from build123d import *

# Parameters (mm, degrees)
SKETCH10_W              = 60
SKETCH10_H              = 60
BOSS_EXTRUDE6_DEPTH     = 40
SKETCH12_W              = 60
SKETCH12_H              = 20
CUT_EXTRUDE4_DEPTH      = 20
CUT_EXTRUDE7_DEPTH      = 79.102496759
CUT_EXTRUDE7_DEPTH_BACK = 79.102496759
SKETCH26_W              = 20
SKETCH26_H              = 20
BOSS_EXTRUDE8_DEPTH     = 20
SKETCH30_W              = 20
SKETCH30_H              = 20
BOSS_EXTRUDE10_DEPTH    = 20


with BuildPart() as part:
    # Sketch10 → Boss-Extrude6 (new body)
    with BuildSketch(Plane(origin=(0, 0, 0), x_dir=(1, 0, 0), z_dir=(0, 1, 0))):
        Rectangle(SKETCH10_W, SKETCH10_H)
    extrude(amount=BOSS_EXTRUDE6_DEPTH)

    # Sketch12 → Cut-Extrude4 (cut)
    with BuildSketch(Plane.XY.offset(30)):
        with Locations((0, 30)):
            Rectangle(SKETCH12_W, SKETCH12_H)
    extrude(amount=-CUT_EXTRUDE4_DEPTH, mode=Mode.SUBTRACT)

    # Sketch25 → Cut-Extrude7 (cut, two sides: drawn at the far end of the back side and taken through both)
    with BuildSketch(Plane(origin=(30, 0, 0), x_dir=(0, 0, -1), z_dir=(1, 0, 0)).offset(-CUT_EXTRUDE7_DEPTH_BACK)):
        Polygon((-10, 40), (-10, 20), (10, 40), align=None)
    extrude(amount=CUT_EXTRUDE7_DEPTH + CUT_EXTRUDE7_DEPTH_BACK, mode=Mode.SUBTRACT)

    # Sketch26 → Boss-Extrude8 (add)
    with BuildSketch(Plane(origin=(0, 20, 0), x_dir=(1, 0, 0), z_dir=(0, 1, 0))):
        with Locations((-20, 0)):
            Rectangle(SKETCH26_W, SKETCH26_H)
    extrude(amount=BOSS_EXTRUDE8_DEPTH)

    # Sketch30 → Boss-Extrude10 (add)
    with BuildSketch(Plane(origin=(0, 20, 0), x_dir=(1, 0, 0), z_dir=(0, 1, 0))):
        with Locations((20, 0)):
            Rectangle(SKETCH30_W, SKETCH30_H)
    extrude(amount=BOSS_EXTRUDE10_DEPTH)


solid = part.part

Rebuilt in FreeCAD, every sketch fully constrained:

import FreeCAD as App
import Part
import Sketcher


def add_polygon(sketch, points):
    """Adds a closed chain of lines whose ends are joined by coincident constraints."""
    first, n = sketch.GeometryCount, len(points)
    for a, b in zip(points, points[1:] + points[:1]):
        sketch.addGeometry(Part.LineSegment(App.Vector(*a, 0), App.Vector(*b, 0)), False)
    for i in range(n):
        sketch.addConstraint(Sketcher.Constraint("Coincident", first + i, 2, first + (i + 1) % n, 1))

doc = App.newDocument("Part")
body = doc.addObject("PartDesign::Body", "Body")

# Sketch on XZ plane
sketch1 = body.newObject("Sketcher::SketchObject", "Sketch")
sketch1.AttachmentSupport = (doc.getObject("XZ_Plane"), [""])
sketch1.MapMode = "FlatFace"
add_polygon(sketch1, [(-30, -30), (-30, 30), (30, 30), (30, -30)])  # lines 0-3
sketch1.addConstraint([
    Sketcher.Constraint("Vertical", 0),
    Sketcher.Constraint("Horizontal", 1),
    Sketcher.Constraint("Vertical", 2),
    Sketcher.Constraint("Horizontal", 3),
    Sketcher.Constraint("Symmetric", 0, 2, 2, 2, -1, 1),
    Sketcher.Constraint("Equal", 3, 0),
    Sketcher.Constraint("DistanceX", 1, 1, 1, 2, 60.0),
])
pad1 = body.newObject("PartDesign::Pad", "Pad")
pad1.Profile = sketch1
pad1.Length = 40
pad1.Reversed = True

# Sketch on XY plane
sketch2 = body.newObject("Sketcher::SketchObject", "Sketch001")
sketch2.AttachmentSupport = (doc.getObject("XY_Plane"), [""])
sketch2.MapMode = "FlatFace"
sketch2.AttachmentOffset = App.Placement(App.Vector(0, 0, 30), App.Rotation())
add_polygon(sketch2, [(-30, 40), (-30, 20), (30, 20), (30, 40)])  # lines 0-3
sketch2.addConstraint([
    Sketcher.Constraint("Vertical", 0),
    Sketcher.Constraint("Horizontal", 1),
    Sketcher.Constraint("Vertical", 2),
    Sketcher.Constraint("Horizontal", 3),
    Sketcher.Constraint("DistanceX", 1, 1, 1, 2, 60.0),
    Sketcher.Constraint("DistanceY", 0, 2, 0, 1, 20.0),
    Sketcher.Constraint("DistanceX", 0, 2, -1, 1, 30.0),
    Sketcher.Constraint("DistanceY", -1, 1, 0, 2, 20.0),
])
pocket1 = body.newObject("PartDesign::Pocket", "Pocket")
pocket1.Profile = sketch2
pocket1.Length = 20

# Sketch on YZ plane
sketch3 = body.newObject("Sketcher::SketchObject", "Sketch002")
sketch3.AttachmentSupport = (doc.getObject("YZ_Plane"), [""])
sketch3.MapMode = "FlatFace"
sketch3.AttachmentOffset = App.Placement(App.Vector(0, 0, 30), App.Rotation())
add_polygon(sketch3, [(40, 10), (20, 10), (40, -10)])  # lines 0-2
sketch3.addConstraint([
    Sketcher.Constraint("Horizontal", 0),
    Sketcher.Constraint("Vertical", 2),
    Sketcher.Constraint("Equal", 0, 2),
    Sketcher.Constraint("DistanceX", 0, 2, 0, 1, 20.0),
    Sketcher.Constraint("DistanceX", -1, 1, 0, 2, 20.0),
    Sketcher.Constraint("DistanceY", -1, 1, 0, 2, 10.0),
])
pocket2 = body.newObject("PartDesign::Pocket", "Pocket001")
pocket2.Profile = sketch3
pocket2.Type = "ThroughAll"
pocket2.Midplane = True

# Sketch on XZ plane
sketch4 = body.newObject("Sketcher::SketchObject", "Sketch003")
sketch4.AttachmentSupport = (doc.getObject("XZ_Plane"), [""])
sketch4.MapMode = "FlatFace"
sketch4.AttachmentOffset = App.Placement(App.Vector(0, 0, -20), App.Rotation())
add_polygon(sketch4, [(-30, -10), (-30, 10), (-10, 10), (-10, -10)])  # lines 0-3
sketch4.addConstraint([
    Sketcher.Constraint("Vertical", 0),
    Sketcher.Constraint("Horizontal", 1),
    Sketcher.Constraint("Vertical", 2),
    Sketcher.Constraint("Horizontal", 3),
    Sketcher.Constraint("Equal", 3, 0),
    Sketcher.Constraint("DistanceX", 1, 1, 1, 2, 20.0),
    Sketcher.Constraint("DistanceX", 0, 2, -1, 1, 30.0),
    Sketcher.Constraint("DistanceY", -1, 1, 0, 2, 10.0),
])
pad2 = body.newObject("PartDesign::Pad", "Pad001")
pad2.Profile = sketch4
pad2.Length = 20
pad2.Reversed = True

# Sketch on XZ plane
sketch5 = body.newObject("Sketcher::SketchObject", "Sketch004")
sketch5.AttachmentSupport = (doc.getObject("XZ_Plane"), [""])
sketch5.MapMode = "FlatFace"
sketch5.AttachmentOffset = App.Placement(App.Vector(0, 0, -20), App.Rotation())
add_polygon(sketch5, [(10, -10), (10, 10), (30, 10), (30, -10)])  # lines 0-3
sketch5.addConstraint([
    Sketcher.Constraint("Vertical", 0),
    Sketcher.Constraint("Horizontal", 1),
    Sketcher.Constraint("Vertical", 2),
    Sketcher.Constraint("Horizontal", 3),
    Sketcher.Constraint("Equal", 3, 0),
    Sketcher.Constraint("DistanceX", 1, 1, 1, 2, 20.0),
    Sketcher.Constraint("DistanceX", -1, 1, 0, 2, 10.0),
    Sketcher.Constraint("DistanceY", -1, 1, 0, 2, 10.0),
])
pad3 = body.newObject("PartDesign::Pad", "Pad002")
pad3.Profile = sketch5
pad3.Length = 20
pad3.Reversed = True

doc.recompute()
